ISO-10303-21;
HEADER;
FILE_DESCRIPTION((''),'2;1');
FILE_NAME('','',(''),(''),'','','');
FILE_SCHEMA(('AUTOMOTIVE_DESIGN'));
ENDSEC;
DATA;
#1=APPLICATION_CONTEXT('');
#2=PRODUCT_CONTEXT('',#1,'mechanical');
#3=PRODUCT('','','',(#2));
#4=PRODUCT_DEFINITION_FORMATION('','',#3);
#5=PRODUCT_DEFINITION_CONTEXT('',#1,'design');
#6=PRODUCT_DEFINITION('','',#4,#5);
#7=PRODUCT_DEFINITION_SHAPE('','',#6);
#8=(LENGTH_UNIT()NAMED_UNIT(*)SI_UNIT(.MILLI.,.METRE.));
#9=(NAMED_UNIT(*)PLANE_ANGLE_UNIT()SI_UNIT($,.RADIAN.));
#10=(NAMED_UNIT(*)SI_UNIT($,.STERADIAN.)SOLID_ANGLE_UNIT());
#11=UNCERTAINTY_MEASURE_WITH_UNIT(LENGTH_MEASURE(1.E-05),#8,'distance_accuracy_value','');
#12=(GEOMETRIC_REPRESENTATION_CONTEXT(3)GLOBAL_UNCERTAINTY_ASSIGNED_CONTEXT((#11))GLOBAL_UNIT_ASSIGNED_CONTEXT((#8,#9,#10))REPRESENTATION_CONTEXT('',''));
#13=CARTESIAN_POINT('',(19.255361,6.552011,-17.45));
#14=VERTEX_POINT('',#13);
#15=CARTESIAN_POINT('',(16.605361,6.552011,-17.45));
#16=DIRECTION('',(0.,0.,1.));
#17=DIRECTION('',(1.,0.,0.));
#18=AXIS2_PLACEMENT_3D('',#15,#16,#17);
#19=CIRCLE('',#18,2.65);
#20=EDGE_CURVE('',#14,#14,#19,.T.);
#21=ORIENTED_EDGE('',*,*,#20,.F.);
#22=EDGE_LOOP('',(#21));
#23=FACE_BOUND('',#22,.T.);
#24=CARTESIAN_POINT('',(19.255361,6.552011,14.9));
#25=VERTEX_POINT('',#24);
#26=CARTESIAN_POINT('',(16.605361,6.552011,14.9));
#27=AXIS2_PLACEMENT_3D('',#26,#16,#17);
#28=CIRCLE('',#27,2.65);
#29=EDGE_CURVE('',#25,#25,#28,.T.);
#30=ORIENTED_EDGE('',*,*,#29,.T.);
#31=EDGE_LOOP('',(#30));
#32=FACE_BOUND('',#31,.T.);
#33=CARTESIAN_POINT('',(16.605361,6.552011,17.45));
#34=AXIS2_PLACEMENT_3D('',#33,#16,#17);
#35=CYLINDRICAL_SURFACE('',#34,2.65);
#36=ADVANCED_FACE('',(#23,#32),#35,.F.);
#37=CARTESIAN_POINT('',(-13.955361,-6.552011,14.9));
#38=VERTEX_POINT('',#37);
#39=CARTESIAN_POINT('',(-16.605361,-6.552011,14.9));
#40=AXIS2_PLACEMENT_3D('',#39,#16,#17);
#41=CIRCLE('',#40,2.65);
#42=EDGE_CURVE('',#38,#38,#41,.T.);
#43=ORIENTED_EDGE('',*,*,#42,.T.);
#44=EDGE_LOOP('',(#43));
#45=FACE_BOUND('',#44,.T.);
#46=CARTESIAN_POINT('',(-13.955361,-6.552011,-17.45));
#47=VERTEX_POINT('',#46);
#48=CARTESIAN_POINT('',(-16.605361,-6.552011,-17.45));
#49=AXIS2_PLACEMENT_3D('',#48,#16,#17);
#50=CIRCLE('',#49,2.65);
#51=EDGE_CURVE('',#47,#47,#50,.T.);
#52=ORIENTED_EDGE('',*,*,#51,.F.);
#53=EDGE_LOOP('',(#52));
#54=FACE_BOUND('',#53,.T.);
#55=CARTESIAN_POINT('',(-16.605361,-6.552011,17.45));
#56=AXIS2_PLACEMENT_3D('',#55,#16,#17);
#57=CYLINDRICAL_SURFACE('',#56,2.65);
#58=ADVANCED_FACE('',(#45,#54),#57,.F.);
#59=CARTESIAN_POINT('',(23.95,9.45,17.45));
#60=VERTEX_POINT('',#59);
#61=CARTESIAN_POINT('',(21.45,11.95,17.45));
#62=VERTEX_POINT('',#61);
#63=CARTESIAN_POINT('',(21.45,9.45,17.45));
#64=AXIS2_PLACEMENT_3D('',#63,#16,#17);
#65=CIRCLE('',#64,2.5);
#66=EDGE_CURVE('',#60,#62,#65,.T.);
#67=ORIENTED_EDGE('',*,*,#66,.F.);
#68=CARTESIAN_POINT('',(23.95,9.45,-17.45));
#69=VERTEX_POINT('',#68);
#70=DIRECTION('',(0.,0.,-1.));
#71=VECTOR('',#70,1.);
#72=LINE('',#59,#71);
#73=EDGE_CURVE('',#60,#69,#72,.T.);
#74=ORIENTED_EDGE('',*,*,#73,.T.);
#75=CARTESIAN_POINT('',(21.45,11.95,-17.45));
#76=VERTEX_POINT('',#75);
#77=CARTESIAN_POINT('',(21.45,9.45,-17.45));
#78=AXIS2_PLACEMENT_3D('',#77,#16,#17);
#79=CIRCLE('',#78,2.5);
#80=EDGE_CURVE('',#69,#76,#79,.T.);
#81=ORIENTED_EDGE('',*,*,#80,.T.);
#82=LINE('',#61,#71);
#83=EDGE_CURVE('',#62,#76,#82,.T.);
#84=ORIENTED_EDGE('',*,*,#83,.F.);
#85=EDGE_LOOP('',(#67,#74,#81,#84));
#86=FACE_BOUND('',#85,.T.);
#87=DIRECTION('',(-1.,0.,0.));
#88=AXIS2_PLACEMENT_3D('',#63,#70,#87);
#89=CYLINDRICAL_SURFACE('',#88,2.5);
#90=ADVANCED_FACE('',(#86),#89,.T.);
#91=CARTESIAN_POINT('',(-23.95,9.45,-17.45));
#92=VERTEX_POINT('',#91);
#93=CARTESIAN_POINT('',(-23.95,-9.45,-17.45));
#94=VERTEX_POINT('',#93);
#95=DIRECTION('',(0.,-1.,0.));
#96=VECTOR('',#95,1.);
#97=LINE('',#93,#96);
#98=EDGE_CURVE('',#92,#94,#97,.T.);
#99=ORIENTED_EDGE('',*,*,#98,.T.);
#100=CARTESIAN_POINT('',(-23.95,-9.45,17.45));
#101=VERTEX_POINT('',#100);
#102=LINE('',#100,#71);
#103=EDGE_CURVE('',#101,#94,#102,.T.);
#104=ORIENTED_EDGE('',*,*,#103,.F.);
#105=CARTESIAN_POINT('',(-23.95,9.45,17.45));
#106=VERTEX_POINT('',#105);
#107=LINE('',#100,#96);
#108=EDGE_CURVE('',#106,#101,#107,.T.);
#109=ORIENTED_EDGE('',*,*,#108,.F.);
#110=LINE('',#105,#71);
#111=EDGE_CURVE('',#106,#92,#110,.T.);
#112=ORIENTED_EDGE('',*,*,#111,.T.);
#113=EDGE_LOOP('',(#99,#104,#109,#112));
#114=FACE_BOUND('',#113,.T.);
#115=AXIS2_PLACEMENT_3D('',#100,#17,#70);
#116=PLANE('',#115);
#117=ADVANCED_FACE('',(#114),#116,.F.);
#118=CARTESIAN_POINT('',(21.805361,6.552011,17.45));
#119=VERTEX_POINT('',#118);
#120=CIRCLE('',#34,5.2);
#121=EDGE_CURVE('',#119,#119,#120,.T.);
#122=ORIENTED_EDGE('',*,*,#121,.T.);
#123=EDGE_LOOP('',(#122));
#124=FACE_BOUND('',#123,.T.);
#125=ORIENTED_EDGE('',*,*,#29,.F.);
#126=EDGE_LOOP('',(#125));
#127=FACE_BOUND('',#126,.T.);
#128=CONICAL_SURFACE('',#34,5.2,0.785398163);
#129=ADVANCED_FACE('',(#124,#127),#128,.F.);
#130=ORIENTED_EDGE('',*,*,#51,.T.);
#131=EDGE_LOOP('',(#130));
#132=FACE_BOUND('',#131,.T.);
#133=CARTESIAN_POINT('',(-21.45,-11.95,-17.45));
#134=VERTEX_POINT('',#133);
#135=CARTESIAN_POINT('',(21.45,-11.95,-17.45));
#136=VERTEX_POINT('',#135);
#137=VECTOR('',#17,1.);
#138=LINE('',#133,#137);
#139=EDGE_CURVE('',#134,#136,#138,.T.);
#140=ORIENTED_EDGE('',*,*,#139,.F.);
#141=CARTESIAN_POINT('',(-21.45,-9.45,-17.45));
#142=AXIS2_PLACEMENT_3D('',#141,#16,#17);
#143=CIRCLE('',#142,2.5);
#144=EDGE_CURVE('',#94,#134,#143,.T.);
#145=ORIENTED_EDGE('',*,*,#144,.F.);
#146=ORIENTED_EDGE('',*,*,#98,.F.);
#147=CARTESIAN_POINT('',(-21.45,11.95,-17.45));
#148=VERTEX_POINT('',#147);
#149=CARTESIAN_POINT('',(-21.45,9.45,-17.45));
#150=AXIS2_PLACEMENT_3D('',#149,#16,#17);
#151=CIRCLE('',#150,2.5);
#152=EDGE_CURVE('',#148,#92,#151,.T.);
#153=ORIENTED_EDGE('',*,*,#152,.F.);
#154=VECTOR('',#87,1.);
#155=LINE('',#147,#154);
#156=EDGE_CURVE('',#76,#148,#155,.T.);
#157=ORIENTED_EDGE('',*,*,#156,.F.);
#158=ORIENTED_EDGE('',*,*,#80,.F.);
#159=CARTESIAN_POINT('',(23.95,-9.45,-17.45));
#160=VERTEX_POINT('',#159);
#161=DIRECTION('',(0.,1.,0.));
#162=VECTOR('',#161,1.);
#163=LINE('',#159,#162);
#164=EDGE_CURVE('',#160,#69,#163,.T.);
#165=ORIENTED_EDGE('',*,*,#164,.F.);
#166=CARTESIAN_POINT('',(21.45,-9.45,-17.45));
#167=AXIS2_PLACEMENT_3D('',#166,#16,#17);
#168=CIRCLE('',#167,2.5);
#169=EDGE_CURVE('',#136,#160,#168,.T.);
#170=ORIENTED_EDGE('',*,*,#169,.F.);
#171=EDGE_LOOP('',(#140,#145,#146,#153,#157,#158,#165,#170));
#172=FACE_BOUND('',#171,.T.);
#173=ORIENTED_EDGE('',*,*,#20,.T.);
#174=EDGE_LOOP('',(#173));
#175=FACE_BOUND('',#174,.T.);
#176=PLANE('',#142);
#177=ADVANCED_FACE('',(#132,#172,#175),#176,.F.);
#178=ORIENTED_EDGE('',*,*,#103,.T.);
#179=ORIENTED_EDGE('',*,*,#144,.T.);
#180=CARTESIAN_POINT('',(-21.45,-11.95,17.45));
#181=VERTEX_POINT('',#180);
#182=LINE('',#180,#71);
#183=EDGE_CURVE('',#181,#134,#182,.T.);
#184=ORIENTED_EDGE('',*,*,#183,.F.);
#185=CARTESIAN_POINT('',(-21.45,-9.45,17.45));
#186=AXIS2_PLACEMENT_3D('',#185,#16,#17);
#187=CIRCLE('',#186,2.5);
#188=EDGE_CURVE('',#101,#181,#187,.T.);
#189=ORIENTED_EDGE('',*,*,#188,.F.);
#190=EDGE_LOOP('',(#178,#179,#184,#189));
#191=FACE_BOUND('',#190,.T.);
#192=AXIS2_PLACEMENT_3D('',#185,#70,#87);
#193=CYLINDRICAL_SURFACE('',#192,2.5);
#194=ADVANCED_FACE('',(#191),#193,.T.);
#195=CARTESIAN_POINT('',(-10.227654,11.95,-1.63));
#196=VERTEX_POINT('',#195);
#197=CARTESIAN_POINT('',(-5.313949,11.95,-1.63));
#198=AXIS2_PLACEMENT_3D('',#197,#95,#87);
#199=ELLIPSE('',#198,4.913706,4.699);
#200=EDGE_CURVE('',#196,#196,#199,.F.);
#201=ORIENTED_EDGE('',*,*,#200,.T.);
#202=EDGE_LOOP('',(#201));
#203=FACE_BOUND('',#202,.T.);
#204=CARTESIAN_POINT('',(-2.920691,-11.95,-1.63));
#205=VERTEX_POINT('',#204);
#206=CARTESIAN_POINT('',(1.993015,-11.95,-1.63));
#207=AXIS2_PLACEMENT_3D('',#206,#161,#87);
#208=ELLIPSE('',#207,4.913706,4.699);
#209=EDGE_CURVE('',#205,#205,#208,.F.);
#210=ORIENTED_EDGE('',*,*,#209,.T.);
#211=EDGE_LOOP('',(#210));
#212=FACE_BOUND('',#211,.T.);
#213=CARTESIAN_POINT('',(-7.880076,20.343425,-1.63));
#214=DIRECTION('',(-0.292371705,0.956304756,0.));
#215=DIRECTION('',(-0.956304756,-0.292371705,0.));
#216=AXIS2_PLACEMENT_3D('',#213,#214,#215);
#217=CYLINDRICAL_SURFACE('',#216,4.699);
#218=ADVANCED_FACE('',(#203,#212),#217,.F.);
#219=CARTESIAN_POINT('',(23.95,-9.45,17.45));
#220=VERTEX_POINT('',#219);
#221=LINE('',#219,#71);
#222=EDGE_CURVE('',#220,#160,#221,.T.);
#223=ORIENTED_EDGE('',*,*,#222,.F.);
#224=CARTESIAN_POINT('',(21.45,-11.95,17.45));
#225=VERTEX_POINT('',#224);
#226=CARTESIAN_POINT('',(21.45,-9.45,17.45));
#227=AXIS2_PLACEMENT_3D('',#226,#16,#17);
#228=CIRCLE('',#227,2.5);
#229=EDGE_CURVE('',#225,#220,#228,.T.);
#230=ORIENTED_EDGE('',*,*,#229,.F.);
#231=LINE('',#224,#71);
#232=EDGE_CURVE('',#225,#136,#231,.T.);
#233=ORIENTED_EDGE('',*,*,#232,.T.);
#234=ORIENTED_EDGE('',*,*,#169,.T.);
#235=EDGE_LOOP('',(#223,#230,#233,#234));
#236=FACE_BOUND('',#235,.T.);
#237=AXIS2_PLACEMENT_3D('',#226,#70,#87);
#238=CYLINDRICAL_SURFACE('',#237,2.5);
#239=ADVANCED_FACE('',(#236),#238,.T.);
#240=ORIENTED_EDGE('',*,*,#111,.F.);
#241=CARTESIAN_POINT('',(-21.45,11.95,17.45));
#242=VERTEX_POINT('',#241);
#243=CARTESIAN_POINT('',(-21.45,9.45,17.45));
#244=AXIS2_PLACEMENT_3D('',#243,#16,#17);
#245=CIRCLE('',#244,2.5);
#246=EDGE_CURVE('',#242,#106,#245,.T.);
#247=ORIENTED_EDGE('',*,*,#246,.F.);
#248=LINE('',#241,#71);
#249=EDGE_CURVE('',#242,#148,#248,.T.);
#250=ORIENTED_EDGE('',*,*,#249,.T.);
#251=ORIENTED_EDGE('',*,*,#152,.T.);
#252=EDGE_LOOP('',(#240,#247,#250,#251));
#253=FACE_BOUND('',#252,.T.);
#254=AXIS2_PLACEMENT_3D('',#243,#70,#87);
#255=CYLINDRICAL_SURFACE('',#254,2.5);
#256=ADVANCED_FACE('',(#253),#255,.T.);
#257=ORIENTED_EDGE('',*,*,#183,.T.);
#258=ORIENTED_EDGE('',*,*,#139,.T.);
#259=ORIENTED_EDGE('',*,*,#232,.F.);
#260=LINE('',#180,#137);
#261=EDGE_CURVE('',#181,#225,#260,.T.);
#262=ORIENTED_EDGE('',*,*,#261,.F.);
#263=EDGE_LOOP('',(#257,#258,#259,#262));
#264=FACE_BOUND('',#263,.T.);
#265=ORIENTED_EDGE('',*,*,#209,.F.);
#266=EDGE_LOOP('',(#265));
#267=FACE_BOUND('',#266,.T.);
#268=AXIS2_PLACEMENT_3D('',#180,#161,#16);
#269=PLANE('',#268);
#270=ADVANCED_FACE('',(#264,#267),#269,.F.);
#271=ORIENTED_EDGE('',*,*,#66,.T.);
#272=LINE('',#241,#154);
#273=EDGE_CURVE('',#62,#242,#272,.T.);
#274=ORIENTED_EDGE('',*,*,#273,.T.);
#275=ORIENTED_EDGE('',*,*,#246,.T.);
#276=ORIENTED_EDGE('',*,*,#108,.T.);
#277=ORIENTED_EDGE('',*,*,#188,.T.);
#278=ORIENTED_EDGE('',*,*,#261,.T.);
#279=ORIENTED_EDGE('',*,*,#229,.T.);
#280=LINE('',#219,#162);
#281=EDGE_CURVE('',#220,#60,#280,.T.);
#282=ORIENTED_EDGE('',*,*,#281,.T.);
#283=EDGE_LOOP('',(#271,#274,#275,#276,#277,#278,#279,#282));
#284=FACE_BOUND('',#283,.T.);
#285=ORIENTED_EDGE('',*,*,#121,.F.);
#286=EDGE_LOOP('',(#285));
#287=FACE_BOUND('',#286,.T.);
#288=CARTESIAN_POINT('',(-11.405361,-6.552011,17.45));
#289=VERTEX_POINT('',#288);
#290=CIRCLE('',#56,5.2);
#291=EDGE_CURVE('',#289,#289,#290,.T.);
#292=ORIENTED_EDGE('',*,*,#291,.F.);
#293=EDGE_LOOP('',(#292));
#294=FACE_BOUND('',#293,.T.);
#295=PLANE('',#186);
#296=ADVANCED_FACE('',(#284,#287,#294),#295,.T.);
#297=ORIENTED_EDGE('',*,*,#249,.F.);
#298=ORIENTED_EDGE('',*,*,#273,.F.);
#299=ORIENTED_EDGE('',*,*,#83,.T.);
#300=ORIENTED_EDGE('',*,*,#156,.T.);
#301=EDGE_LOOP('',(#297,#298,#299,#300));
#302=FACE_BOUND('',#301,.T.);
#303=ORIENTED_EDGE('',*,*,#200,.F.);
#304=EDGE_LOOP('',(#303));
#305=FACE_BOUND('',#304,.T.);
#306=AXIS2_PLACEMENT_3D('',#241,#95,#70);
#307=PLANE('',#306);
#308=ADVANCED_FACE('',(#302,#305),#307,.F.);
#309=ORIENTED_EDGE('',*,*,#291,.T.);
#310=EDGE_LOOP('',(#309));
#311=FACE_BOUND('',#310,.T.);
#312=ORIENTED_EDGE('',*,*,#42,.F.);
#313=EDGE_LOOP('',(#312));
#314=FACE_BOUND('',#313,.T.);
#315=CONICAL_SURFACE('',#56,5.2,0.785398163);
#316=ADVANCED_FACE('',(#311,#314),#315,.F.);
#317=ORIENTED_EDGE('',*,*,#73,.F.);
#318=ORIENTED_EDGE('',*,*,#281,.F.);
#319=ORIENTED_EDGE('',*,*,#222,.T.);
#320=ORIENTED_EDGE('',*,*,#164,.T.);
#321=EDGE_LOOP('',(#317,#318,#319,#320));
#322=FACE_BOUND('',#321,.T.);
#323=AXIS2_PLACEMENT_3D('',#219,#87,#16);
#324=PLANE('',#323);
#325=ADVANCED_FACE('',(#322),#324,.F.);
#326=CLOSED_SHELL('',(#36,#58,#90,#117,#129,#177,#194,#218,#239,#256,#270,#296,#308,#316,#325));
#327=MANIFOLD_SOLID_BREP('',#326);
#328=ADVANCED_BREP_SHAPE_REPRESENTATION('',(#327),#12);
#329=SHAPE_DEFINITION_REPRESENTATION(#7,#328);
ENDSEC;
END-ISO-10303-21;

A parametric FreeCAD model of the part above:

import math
import FreeCAD as App
import Part
import Sketcher
Q = App.Units.Quantity

doc = App.newDocument("Part")
body = doc.addObject("PartDesign::Body", "Body")

# Sketch on XY plane
sketch1 = doc.addObject("Sketcher::SketchObject", "Sketch")
body.addObject(sketch1)
sketch1.AttachmentSupport = (doc.XY_Plane, [""])
sketch1.MapMode = "FlatFace"
sketch1.addGeometry([
    Part.LineSegment(App.Vector(-21.4, -11.9, 0), App.Vector(21.4, -11.9, 0)),  # 0
    Part.ArcOfCircle(Part.Circle(App.Vector(21.4, -9.4, 0), App.Vector(0, 0, 1), 2.5), math.radians(-90), math.radians(0)),  # 1
    Part.LineSegment(App.Vector(23.9, -9.4, 0), App.Vector(23.9, 9.4, 0)),  # 2
    Part.ArcOfCircle(Part.Circle(App.Vector(21.4, 9.4, 0), App.Vector(0, 0, 1), 2.5), math.radians(0), math.radians(90)),  # 3
    Part.LineSegment(App.Vector(21.4, 11.9, 0), App.Vector(-21.4, 11.9, 0)),  # 4
    Part.ArcOfCircle(Part.Circle(App.Vector(-21.4, 9.4, 0), App.Vector(0, 0, 1), 2.5), math.radians(90), math.radians(180)),  # 5
    Part.LineSegment(App.Vector(-23.9, 9.4, 0), App.Vector(-23.9, -9.4, 0)),  # 6
    Part.ArcOfCircle(Part.Circle(App.Vector(-21.4, -9.4, 0), App.Vector(0, 0, 1), 2.5), math.radians(180), math.radians(270)),  # 7
], False)
sketch1.addConstraint([
    Sketcher.Constraint("Tangent", 0, 2, 1, 1),
    Sketcher.Constraint("Tangent", 1, 2, 2, 1),
    Sketcher.Constraint("Tangent", 2, 2, 3, 1),
    Sketcher.Constraint("Tangent", 3, 2, 4, 1),
    Sketcher.Constraint("Tangent", 4, 2, 5, 1),
    Sketcher.Constraint("Tangent", 5, 2, 6, 1),
    Sketcher.Constraint("Tangent", 6, 2, 7, 1),
    Sketcher.Constraint("Tangent", 7, 2, 0, 1),
    Sketcher.Constraint("Horizontal", 0),
    Sketcher.Constraint("Vertical", 2),
    Sketcher.Constraint("Horizontal", 4),
    Sketcher.Constraint("Vertical", 6),
    Sketcher.Constraint("Equal", 1, 3),
    Sketcher.Constraint("Equal", 3, 5),
    Sketcher.Constraint("Equal", 5, 7),
    Sketcher.Constraint("Symmetric", 1, 3, 5, 3, -1, 1),
    Sketcher.Constraint("Radius", 1, Q("2.5 mm")),
    Sketcher.Constraint("DistanceX", 0, 1, 0, 2, Q("42.9 mm")),
    Sketcher.Constraint("DistanceY", 2, 1, 2, 2, Q("18.9 mm")),
])
pad1 = doc.addObject("PartDesign::Pad", "Pad")
body.addObject(pad1)
pad1.Profile = sketch1
pad1.Length = 34.9
pad1.Midplane = True

# Sketch on XY plane
sketch2 = doc.addObject("Sketcher::SketchObject", "Sketch001")
body.addObject(sketch2)
sketch2.AttachmentSupport = (doc.XY_Plane, [""])
sketch2.MapMode = "FlatFace"
sketch2.AttachmentOffset = App.Placement(App.Vector(0, 0, 17.45), App.Rotation())
sketch2.addGeometry([
    Part.Circle(App.Vector(-16.6, -6.6, 0), App.Vector(0, 0, 1), 2.6),
    Part.Circle(App.Vector(16.6, 6.6, 0), App.Vector(0, 0, 1), 2.6),
], False)
sketch2.addConstraint([
    Sketcher.Constraint("Equal", 0, 1),
    Sketcher.Constraint("Symmetric", 0, 3, 1, 3, -1, 1),
    Sketcher.Constraint("Diameter", 0, Q("5.3 mm")),
    Sketcher.Constraint("DistanceX", 0, 3, -1, 1, Q("16.605361 mm")),
    Sketcher.Constraint("DistanceY", 0, 3, -1, 1, Q("6.552011 mm")),
])
doc.recompute()
hole = doc.addObject("PartDesign::Hole", "Hole")
body.addObject(hole)
hole.Profile = sketch2
hole.ThreadType = "None"
hole.Diameter = 5.3
hole.DepthType = "ThroughAll"
hole.HoleCutType = "Countersink"
hole.HoleCutDiameter = 10.4
hole.HoleCutCountersinkAngle = 90

# Sketch on an angled plane
sketch3 = doc.addObject("Sketcher::SketchObject", "Sketch002")
body.addObject(sketch3)
sketch3.Placement = App.Placement(App.Vector(-1.518528, -0.464261, 0), App.Rotation(App.Vector(0, 0, -1), App.Vector(-0.292371705, 0.956304756, 0), App.Vector(0.956304756, 0.292371705, 0), "ZXY"))
sketch3.addGeometry([
    Part.LineSegment(App.Vector(1.6, 21.8, 0), App.Vector(1.6, -21.8, 0)),
    Part.LineSegment(App.Vector(1.6, -21.8, 0), App.Vector(6.3, -21.8, 0)),
    Part.LineSegment(App.Vector(6.3, -21.8, 0), App.Vector(6.3, 21.8, 0)),
    Part.LineSegment(App.Vector(6.3, 21.8, 0), App.Vector(1.6, 21.8, 0)),
], False)
sketch3.addGeometry(Part.LineSegment(App.Vector(1.6, 21.8, 0), App.Vector(1.6, -21.8, 0)), True)  # axis
sketch3.addConstraint([
    Sketcher.Constraint("Coincident", 0, 2, 1, 1),
    Sketcher.Constraint("Coincident", 1, 2, 2, 1),
    Sketcher.Constraint("Coincident", 2, 2, 3, 1),
    Sketcher.Constraint("Coincident", 3, 2, 0, 1),
    Sketcher.Constraint("Vertical", 0),
    Sketcher.Constraint("Horizontal", 1),
    Sketcher.Constraint("Vertical", 2),
    Sketcher.Constraint("Horizontal", 3),
    Sketcher.Constraint("Vertical", 4),
    Sketcher.Constraint("Coincident", 4, 1, 3, 2),
    Sketcher.Constraint("Horizontal", 1, 2, 4, 2),
    Sketcher.Constraint("DistanceX", 1, 1, 1, 2, Q("4.699 mm")),
    Sketcher.Constraint("DistanceX", -1, 1, 0, 2, Q("1.63 mm")),
    Sketcher.Constraint("DistanceY", 0, 2, 0, 1, Q("43.607186 mm")),
    Sketcher.Constraint("DistanceY", 0, 2, -1, 1, Q("21.848761 mm")),
])
groove = doc.addObject("PartDesign::Groove", "Groove")
body.addObject(groove)
groove.Profile = sketch3
groove.ReferenceAxis = (sketch3, ["Axis0"])
groove.Angle = 360

doc.recompute()
